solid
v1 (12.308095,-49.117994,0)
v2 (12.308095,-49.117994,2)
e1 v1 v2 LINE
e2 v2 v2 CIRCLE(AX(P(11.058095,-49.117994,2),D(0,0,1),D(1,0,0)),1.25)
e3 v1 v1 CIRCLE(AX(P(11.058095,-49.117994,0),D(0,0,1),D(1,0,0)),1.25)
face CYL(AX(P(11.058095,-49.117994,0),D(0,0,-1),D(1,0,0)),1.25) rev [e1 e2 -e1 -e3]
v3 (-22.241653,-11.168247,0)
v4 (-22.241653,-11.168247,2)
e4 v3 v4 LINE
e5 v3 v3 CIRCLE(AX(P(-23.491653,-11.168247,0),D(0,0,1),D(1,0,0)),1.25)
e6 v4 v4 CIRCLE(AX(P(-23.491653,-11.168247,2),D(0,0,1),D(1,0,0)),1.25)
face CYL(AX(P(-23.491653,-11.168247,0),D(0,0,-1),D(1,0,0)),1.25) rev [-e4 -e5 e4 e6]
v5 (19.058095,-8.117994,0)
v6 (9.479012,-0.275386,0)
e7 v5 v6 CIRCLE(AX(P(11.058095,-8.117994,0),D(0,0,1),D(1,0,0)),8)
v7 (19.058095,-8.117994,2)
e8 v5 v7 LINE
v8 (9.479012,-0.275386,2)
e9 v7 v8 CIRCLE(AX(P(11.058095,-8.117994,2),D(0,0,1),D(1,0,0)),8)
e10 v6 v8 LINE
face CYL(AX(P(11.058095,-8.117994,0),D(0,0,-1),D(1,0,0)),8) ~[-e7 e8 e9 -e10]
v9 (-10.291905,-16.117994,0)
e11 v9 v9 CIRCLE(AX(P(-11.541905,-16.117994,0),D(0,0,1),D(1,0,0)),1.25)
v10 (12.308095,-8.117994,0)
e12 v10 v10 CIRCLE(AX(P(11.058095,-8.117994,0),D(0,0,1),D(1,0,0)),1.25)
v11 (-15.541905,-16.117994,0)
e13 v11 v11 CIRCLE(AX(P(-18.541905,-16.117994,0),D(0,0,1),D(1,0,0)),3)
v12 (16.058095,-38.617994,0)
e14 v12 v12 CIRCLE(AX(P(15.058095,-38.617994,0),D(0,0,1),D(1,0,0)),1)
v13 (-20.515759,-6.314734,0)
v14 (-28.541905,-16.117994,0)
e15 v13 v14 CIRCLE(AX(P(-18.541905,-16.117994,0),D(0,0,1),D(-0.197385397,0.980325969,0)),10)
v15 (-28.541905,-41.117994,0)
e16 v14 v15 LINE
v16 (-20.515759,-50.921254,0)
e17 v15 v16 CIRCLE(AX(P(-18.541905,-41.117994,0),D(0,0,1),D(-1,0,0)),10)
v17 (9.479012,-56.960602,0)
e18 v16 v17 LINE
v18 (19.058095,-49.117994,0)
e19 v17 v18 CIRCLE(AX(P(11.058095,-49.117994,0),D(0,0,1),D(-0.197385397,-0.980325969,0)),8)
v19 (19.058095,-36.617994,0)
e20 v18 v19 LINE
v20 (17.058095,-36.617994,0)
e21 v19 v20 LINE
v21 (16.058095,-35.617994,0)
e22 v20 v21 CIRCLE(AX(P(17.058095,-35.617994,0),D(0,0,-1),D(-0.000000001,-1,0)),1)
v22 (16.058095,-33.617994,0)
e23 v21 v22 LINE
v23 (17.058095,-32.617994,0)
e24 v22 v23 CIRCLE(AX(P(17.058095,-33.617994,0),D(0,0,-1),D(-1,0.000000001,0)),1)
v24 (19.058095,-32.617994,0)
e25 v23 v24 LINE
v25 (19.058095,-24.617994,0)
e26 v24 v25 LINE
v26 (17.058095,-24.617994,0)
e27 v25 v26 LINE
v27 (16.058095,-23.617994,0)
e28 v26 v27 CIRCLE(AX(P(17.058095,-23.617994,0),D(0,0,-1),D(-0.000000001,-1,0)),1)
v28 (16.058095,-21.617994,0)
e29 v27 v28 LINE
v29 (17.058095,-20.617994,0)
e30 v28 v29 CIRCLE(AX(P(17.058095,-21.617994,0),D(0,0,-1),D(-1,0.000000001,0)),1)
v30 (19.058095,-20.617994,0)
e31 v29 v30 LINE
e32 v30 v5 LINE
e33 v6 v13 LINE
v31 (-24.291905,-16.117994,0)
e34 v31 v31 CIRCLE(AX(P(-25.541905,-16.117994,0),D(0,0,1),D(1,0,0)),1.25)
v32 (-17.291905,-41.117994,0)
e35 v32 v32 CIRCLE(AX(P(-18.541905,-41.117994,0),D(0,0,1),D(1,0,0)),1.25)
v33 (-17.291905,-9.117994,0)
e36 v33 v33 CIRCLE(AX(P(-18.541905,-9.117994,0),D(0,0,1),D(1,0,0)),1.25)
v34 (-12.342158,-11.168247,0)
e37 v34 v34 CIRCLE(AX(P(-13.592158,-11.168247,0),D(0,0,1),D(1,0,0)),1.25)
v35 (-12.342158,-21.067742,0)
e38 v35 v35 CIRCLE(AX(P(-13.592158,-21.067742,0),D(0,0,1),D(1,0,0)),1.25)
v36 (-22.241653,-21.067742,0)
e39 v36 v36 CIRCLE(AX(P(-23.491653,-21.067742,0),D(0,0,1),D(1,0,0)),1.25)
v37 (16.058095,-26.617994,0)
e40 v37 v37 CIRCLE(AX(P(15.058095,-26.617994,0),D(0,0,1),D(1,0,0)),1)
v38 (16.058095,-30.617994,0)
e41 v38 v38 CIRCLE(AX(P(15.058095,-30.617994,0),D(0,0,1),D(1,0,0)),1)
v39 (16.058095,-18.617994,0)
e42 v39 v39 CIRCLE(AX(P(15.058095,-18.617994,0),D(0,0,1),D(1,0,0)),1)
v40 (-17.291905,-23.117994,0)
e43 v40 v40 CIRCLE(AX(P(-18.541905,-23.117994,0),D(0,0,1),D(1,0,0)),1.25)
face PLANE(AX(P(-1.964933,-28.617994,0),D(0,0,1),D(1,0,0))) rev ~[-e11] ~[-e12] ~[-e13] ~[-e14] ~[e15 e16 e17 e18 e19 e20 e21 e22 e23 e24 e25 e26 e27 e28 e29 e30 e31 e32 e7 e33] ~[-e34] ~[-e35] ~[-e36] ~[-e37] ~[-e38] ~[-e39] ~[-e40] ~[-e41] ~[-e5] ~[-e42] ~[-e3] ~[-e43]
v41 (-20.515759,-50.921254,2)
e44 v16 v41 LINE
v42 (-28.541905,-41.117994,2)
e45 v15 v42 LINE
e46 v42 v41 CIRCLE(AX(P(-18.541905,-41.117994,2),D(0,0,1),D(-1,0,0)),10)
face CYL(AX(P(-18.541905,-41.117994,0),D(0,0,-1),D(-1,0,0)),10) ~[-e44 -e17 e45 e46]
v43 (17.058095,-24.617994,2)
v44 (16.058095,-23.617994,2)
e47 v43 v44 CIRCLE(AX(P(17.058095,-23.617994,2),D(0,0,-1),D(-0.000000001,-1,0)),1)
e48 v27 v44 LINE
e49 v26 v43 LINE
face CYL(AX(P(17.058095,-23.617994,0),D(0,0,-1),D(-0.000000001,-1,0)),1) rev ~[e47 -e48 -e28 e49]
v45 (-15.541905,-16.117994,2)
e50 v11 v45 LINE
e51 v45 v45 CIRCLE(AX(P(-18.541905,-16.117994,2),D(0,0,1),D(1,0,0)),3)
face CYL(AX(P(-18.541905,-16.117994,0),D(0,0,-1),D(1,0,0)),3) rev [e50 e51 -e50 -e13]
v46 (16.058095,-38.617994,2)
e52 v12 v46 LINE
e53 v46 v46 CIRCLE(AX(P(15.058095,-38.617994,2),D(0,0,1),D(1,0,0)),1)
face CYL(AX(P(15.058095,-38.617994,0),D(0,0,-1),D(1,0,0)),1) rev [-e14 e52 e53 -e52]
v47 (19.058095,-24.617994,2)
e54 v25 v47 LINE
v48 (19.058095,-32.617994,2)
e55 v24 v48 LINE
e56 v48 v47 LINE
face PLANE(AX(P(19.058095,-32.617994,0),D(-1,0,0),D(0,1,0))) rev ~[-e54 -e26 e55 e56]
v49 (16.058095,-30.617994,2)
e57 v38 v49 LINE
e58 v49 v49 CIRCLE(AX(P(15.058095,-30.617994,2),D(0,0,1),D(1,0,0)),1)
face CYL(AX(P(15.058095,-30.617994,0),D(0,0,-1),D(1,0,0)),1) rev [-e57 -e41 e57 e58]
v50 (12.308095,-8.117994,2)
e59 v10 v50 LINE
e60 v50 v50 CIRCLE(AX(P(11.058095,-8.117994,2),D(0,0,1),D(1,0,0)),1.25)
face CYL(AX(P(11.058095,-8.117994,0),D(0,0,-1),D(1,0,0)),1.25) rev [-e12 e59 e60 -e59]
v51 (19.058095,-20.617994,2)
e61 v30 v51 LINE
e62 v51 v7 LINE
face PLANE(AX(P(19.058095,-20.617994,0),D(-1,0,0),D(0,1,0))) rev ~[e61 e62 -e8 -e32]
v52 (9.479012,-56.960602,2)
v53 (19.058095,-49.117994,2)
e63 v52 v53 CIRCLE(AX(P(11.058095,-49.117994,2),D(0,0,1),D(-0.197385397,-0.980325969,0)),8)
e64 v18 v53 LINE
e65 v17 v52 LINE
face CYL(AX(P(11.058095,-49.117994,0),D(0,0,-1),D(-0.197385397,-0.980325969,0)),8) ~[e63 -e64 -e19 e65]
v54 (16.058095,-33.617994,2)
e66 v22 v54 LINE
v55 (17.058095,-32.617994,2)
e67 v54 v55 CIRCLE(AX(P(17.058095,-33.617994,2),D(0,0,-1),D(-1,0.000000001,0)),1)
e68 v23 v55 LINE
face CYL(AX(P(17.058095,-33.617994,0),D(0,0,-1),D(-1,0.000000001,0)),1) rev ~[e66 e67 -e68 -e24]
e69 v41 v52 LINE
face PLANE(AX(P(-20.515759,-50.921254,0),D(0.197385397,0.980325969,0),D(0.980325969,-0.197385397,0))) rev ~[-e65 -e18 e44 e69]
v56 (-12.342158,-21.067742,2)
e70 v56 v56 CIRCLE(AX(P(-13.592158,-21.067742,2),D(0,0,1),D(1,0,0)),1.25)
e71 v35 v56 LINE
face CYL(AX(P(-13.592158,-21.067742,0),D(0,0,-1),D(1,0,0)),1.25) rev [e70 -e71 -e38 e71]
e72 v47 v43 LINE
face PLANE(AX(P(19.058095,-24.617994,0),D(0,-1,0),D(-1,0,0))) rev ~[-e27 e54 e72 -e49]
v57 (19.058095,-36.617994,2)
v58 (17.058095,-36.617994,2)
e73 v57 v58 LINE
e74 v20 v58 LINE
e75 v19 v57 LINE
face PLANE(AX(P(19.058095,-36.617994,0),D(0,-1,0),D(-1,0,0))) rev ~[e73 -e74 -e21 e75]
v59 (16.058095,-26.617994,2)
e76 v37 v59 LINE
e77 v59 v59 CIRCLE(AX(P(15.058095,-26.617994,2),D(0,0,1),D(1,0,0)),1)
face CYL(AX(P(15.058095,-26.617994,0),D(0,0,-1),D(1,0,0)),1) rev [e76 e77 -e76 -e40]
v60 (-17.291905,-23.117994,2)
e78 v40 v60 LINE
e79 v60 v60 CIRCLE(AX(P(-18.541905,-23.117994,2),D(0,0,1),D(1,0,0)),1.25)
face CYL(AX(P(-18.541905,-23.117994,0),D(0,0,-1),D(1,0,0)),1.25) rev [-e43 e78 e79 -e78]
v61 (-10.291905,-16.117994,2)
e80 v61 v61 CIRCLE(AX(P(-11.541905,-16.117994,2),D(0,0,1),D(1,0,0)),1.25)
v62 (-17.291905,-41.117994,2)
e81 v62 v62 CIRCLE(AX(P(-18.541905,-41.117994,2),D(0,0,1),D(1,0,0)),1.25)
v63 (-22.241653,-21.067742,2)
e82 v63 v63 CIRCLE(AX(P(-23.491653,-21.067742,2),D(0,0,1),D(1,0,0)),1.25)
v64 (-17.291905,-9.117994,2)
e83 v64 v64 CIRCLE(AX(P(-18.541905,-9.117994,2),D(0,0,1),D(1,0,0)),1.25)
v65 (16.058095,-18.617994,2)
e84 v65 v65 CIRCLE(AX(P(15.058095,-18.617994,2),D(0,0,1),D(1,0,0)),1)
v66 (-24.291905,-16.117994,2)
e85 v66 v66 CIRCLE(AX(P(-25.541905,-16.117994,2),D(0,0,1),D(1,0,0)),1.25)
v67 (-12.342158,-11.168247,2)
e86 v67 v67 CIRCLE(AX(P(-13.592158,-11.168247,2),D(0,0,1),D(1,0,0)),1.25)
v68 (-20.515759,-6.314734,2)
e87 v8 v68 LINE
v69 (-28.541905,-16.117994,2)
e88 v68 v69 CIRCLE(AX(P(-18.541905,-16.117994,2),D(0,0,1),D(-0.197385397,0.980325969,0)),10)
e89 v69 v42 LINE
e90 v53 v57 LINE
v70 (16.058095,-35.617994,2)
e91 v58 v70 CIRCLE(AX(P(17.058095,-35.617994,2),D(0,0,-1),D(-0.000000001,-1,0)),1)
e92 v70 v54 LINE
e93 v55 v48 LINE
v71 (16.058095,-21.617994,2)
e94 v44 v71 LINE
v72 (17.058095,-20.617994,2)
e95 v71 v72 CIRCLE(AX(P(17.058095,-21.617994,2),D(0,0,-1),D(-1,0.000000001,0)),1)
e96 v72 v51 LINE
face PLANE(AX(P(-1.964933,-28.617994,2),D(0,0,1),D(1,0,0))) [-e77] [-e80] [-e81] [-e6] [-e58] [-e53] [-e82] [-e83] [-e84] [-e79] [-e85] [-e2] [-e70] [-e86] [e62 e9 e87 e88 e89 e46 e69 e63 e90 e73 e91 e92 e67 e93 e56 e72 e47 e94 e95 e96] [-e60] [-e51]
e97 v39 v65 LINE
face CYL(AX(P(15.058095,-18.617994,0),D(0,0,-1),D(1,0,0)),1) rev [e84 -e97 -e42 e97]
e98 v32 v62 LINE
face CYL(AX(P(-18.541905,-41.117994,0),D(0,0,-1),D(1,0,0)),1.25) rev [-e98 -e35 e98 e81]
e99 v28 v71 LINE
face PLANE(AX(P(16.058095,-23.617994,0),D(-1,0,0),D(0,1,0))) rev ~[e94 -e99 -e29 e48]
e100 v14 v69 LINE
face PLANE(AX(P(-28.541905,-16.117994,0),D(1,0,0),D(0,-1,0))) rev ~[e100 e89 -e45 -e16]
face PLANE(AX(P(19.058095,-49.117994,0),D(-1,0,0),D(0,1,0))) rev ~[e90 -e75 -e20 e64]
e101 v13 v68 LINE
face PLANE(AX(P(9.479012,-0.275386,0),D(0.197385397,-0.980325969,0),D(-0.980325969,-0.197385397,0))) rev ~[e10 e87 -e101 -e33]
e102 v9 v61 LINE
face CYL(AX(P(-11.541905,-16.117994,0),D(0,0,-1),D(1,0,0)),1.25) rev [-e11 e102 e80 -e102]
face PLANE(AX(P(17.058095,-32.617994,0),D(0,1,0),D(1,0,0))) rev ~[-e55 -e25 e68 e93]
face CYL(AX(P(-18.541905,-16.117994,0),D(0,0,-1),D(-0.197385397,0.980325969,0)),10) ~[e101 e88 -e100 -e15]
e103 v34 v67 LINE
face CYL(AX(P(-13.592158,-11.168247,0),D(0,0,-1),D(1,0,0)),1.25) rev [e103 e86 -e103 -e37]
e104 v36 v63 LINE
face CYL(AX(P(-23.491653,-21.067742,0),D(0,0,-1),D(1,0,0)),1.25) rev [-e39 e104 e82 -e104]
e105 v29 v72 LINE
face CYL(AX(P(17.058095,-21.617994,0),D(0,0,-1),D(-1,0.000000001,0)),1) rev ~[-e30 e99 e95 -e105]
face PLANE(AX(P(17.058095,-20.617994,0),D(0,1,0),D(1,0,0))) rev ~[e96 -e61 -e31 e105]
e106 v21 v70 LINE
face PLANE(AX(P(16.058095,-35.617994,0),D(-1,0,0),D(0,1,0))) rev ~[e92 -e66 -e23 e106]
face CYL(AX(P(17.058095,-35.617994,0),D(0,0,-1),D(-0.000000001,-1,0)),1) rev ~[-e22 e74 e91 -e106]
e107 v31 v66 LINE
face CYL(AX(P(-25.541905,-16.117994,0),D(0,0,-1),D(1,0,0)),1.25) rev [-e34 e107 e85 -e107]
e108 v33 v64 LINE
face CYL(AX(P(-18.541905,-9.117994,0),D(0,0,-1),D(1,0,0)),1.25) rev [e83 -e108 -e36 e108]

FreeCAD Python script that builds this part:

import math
import FreeCAD as App
import Part
import Sketcher

V = App.Vector

doc = App.newDocument("Part")
params = doc.addObject("Spreadsheet::Sheet", "Params")
for row, (alias, value) in enumerate([
    ("sketch1_diameter", "2 mm"),
    ("sketch1_diameter2", "6 mm"),
    ("sketch1_radius", "10 mm"),
    ("sketch1_radius2", "8 mm"),
    ("sketch1_diameter3", "2.5 mm"),
    ("pad1_length", "2 mm"),
], start=1):
    params.set(f"A{row}", alias)
    params.set(f"B{row}", "=" + value)
    params.setAlias(f"B{row}", alias)

body = doc.addObject("PartDesign::Body", "Body")

# Sketch on XY plane
sketch1 = body.newObject("Sketcher::SketchObject", "Sketch")
sketch1.AttachmentSupport = (doc.getObject("XY_Plane"), [""])
sketch1.MapMode = "FlatFace"
sketch1.addGeometry(Part.LineSegment(V(-28.541905, -16.117994, 0), V(-28.541905, -41.117994, 0)), False)
sketch1.addGeometry(Part.ArcOfCircle(Part.Circle(V(-18.541905, -41.117994, 0), V(0, 0, 1), 10), math.radians(180), math.radians(258.615894)), False)
sketch1.addGeometry(Part.LineSegment(V(-20.515759, -50.921254, 0), V(9.479012, -56.960602, 0)), False)
sketch1.addGeometry(Part.ArcOfCircle(Part.Circle(V(11.058095, -49.117994, 0), V(0, 0, 1), 8), math.radians(-101.384106), math.radians(0)), False)
sketch1.addGeometry(Part.LineSegment(V(19.058095, -49.117994, 0), V(19.058095, -36.617994, 0)), False)
sketch1.addGeometry(Part.LineSegment(V(19.058095, -36.617994, 0), V(17.058095, -36.617994, 0)), False)
sketch1.addGeometry(Part.ArcOfCircle(Part.Circle(V(17.058095, -35.617994, 0), V(0, 0, 1), 1), math.radians(-180), math.radians(-90)), False)
sketch1.addGeometry(Part.LineSegment(V(16.058095, -35.617994, 0), V(16.058095, -33.617994, 0)), False)
sketch1.addGeometry(Part.ArcOfCircle(Part.Circle(V(17.058095, -33.617994, 0), V(0, 0, 1), 1), math.radians(90), math.radians(180)), False)
sketch1.addGeometry(Part.LineSegment(V(17.058095, -32.617994, 0), V(19.058095, -32.617994, 0)), False)
sketch1.addGeometry(Part.LineSegment(V(19.058095, -32.617994, 0), V(19.058095, -24.617994, 0)), False)
sketch1.addGeometry(Part.LineSegment(V(19.058095, -24.617994, 0), V(17.058095, -24.617994, 0)), False)
sketch1.addGeometry(Part.ArcOfCircle(Part.Circle(V(17.058095, -23.617994, 0), V(0, 0, 1), 1), math.radians(-180), math.radians(-90)), False)
sketch1.addGeometry(Part.LineSegment(V(16.058095, -23.617994, 0), V(16.058095, -21.617994, 0)), False)
sketch1.addGeometry(Part.ArcOfCircle(Part.Circle(V(17.058095, -21.617994, 0), V(0, 0, 1), 1), math.radians(90), math.radians(180)), False)
sketch1.addGeometry(Part.LineSegment(V(17.058095, -20.617994, 0), V(19.058095, -20.617994, 0)), False)
sketch1.addGeometry(Part.LineSegment(V(19.058095, -20.617994, 0), V(19.058095, -8.117994, 0)), False)
sketch1.addGeometry(Part.ArcOfCircle(Part.Circle(V(11.058095, -8.117994, 0), V(0, 0, 1), 8), math.radians(0), math.radians(101.384106)), False)
sketch1.addGeometry(Part.LineSegment(V(9.479012, -0.275386, 0), V(-20.515759, -6.314734, 0)), False)
sketch1.addGeometry(Part.ArcOfCircle(Part.Circle(V(-18.541905, -16.117994, 0), V(0, 0, 1), 10), math.radians(101.384106), math.radians(180)), False)
sketch1.addGeometry(Part.Circle(V(-18.541905, -41.117994, 0), V(0, 0, 1), 1.25), False)
sketch1.addGeometry(Part.Circle(V(11.058095, -49.117994, 0), V(0, 0, 1), 1.25), False)
sketch1.addGeometry(Part.Circle(V(15.058095, -38.617994, 0), V(0, 0, 1), 1), False)
sketch1.addGeometry(Part.Circle(V(15.058095, -30.617994, 0), V(0, 0, 1), 1), False)
sketch1.addGeometry(Part.Circle(V(-23.491653, -21.067742, 0), V(0, 0, 1), 1.25), False)
sketch1.addGeometry(Part.Circle(V(-18.541905, -23.117994, 0), V(0, 0, 1), 1.25), False)
sketch1.addGeometry(Part.Circle(V(-13.592158, -21.067742, 0), V(0, 0, 1), 1.25), False)
sketch1.addGeometry(Part.Circle(V(-25.541905, -16.117994, 0), V(0, 0, 1), 1.25), False)
sketch1.addGeometry(Part.Circle(V(-18.541905, -16.117994, 0), V(0, 0, 1), 3), False)
sketch1.addGeometry(Part.Circle(V(-23.491653, -11.168247, 0), V(0, 0, 1), 1.25), False)
sketch1.addGeometry(Part.Circle(V(-18.541905, -9.117994, 0), V(0, 0, 1), 1.25), False)
sketch1.addGeometry(Part.Circle(V(-11.541905, -16.117994, 0), V(0, 0, 1), 1.25), False)
sketch1.addGeometry(Part.Circle(V(-13.592158, -11.168247, 0), V(0, 0, 1), 1.25), False)
sketch1.addGeometry(Part.Circle(V(15.058095, -26.617994, 0), V(0, 0, 1), 1), False)
sketch1.addGeometry(Part.Circle(V(15.058095, -18.617994, 0), V(0, 0, 1), 1), False)
sketch1.addGeometry(Part.Circle(V(11.058095, -8.117994, 0), V(0, 0, 1), 1.25), False)
sketch1.addConstraint(Sketcher.Constraint("Tangent", 0, 2, 1, 1))
sketch1.addConstraint(Sketcher.Constraint("Tangent", 1, 2, 2, 1))
sketch1.addConstraint(Sketcher.Constraint("Tangent", 2, 2, 3, 1))
sketch1.addConstraint(Sketcher.Constraint("Tangent", 3, 2, 4, 1))
sketch1.addConstraint(Sketcher.Constraint("Coincident", 4, 2, 5, 1))
sketch1.addConstraint(Sketcher.Constraint("Tangent", 5, 2, 6, 2))
sketch1.addConstraint(Sketcher.Constraint("Tangent", 6, 1, 7, 1))
sketch1.addConstraint(Sketcher.Constraint("Tangent", 7, 2, 8, 2))
sketch1.addConstraint(Sketcher.Constraint("Tangent", 8, 1, 9, 1))
sketch1.addConstraint(Sketcher.Constraint("Coincident", 9, 2, 10, 1))
sketch1.addConstraint(Sketcher.Constraint("Coincident", 10, 2, 11, 1))
sketch1.addConstraint(Sketcher.Constraint("Tangent", 11, 2, 12, 2))
sketch1.addConstraint(Sketcher.Constraint("Tangent", 12, 1, 13, 1))
sketch1.addConstraint(Sketcher.Constraint("Tangent", 13, 2, 14, 2))
sketch1.addConstraint(Sketcher.Constraint("Tangent", 14, 1, 15, 1))
sketch1.addConstraint(Sketcher.Constraint("Coincident", 15, 2, 16, 1))
sketch1.addConstraint(Sketcher.Constraint("Tangent", 16, 2, 17, 1))
sketch1.addConstraint(Sketcher.Constraint("Tangent", 17, 2, 18, 1))
sketch1.addConstraint(Sketcher.Constraint("Tangent", 18, 2, 19, 1))
sketch1.addConstraint(Sketcher.Constraint("Tangent", 19, 2, 0, 1))
sketch1.addConstraint(Sketcher.Constraint("Vertical", 0))
sketch1.addConstraint(Sketcher.Constraint("Vertical", 4))
sketch1.addConstraint(Sketcher.Constraint("Horizontal", 5))
sketch1.addConstraint(Sketcher.Constraint("Vertical", 7))
sketch1.addConstraint(Sketcher.Constraint("Horizontal", 9))
sketch1.addConstraint(Sketcher.Constraint("Vertical", 10))
sketch1.addConstraint(Sketcher.Constraint("Horizontal", 11))
sketch1.addConstraint(Sketcher.Constraint("Vertical", 13))
sketch1.addConstraint(Sketcher.Constraint("Horizontal", 15))
sketch1.addConstraint(Sketcher.Constraint("Vertical", 16))
sketch1.addConstraint(Sketcher.Constraint("Coincident", 20, 3, 1, 3))
sketch1.addConstraint(Sketcher.Constraint("Coincident", 21, 3, 3, 3))
sketch1.addConstraint(Sketcher.Constraint("Coincident", 28, 3, 19, 3))
sketch1.addConstraint(Sketcher.Constraint("Coincident", 35, 3, 17, 3))
sketch1.addConstraint(Sketcher.Constraint("Equal", 6, 8))
sketch1.addConstraint(Sketcher.Constraint("Equal", 8, 12))
sketch1.addConstraint(Sketcher.Constraint("Equal", 12, 14))
sketch1.addConstraint(Sketcher.Constraint("Equal", 3, 17))
sketch1.addConstraint(Sketcher.Constraint("Equal", 1, 19))
sketch1.addConstraint(Sketcher.Constraint("Equal", 20, 21))
sketch1.addConstraint(Sketcher.Constraint("Equal", 14, 22))
sketch1.addConstraint(Sketcher.Constraint("Equal", 22, 23))
sketch1.addConstraint(Sketcher.Constraint("Equal", 21, 24))
sketch1.addConstraint(Sketcher.Constraint("Equal", 24, 25))
sketch1.addConstraint(Sketcher.Constraint("Equal", 25, 26))
sketch1.addConstraint(Sketcher.Constraint("Equal", 26, 27))
sketch1.addConstraint(Sketcher.Constraint("Equal", 27, 29))
sketch1.addConstraint(Sketcher.Constraint("Equal", 29, 30))
sketch1.addConstraint(Sketcher.Constraint("Equal", 30, 31))
sketch1.addConstraint(Sketcher.Constraint("Equal", 31, 32))
sketch1.addConstraint(Sketcher.Constraint("Equal", 23, 33))
sketch1.addConstraint(Sketcher.Constraint("Equal", 33, 34))
sketch1.addConstraint(Sketcher.Constraint("Equal", 32, 35))
sketch1.addConstraint(Sketcher.Constraint("Horizontal", 24, 3, 26, 3))
sketch1.addConstraint(Sketcher.Constraint("Horizontal", 19, 3, 27, 3))
sketch1.addConstraint(Sketcher.Constraint("Horizontal", 28, 3, 31, 3))
sketch1.addConstraint(Sketcher.Constraint("Horizontal", 29, 3, 32, 3))
sketch1.addConstraint(Sketcher.Constraint("Vertical", 8, 3, 12, 3))
sketch1.addConstraint(Sketcher.Constraint("Vertical", 3, 3, 17, 3))
sketch1.addConstraint(Sketcher.Constraint("Vertical", 22, 3, 23, 3))
sketch1.addConstraint(Sketcher.Constraint("Vertical", 20, 3, 25, 3))
sketch1.addConstraint(Sketcher.Constraint("Vertical", 24, 3, 29, 3))
sketch1.addConstraint(Sketcher.Constraint("Vertical", 28, 3, 30, 3))
sketch1.addConstraint(Sketcher.Constraint("Vertical", 26, 3, 32, 3))
sketch1.addConstraint(Sketcher.Constraint("Vertical", 23, 3, 33, 3))
sketch1.addConstraint(Sketcher.Constraint("Vertical", 33, 3, 34, 3))
sketch1.addConstraint(Sketcher.Constraint("Vertical", 4, 2, 9, 2))
sketch1.addConstraint(Sketcher.Constraint("Vertical", 2, 2, 17, 2))
sketch1.addConstraint(Sketcher.Constraint("Equal", 15, 7))
sketch1.addConstraint(Sketcher.Constraint("Equal", 7, 13))
sketch1.addConstraint(Sketcher.Constraint("Equal", 4, 16))
sketch1.addConstraint(Sketcher.Constraint("Diameter", 22, 2.0))
sketch1.addConstraint(Sketcher.Constraint("Diameter", 28, 6.0))
sketch1.addConstraint(Sketcher.Constraint("Radius", 1, 10.0))
sketch1.addConstraint(Sketcher.Constraint("Radius", 3, 8.0))
sketch1.addConstraint(Sketcher.Constraint("Diameter", 20, 2.5))
sketch1.addConstraint(Sketcher.Constraint("DistanceX", 5, 2, 5, 1, 2.0))
sketch1.addConstraint(Sketcher.Constraint("DistanceY", 0, 2, 0, 1, 25.0))
sketch1.addConstraint(Sketcher.Constraint("DistanceY", 10, 1, 10, 2, 8.0))
sketch1.addConstraint(Sketcher.Constraint("DistanceY", 4, 1, 4, 2, 12.5))
sketch1.addConstraint(Sketcher.Constraint("DistanceX", 22, 3, 6, 3, 2.0))
sketch1.addConstraint(Sketcher.Constraint("DistanceY", 22, 3, 6, 3, 3.0))
sketch1.addConstraint(Sketcher.Constraint("DistanceY", 8, 3, 23, 3, 3.0))
sketch1.addConstraint(Sketcher.Constraint("DistanceY", 25, 3, 19, 3, 7.0))
sketch1.addConstraint(Sketcher.Constraint("DistanceX", 27, 3, 19, 3, 7.0))
sketch1.addConstraint(Sketcher.Constraint("DistanceY", 28, 3, 30, 3, 7.0))
sketch1.addConstraint(Sketcher.Constraint("DistanceX", 19, 3, 31, 3, 7.0))
sketch1.addConstraint(Sketcher.Constraint("DistanceY", 33, 3, 12, 3, 3.0))
sketch1.addConstraint(Sketcher.Constraint("DistanceY", 14, 3, 34, 3, 3.0))
sketch1.addConstraint(Sketcher.Constraint("DistanceX", 1, 3, 3, 3, 29.6))
sketch1.addConstraint(Sketcher.Constraint("DistanceY", 2, 2, -1, 1, 56.960602))
sketch1.addConstraint(Sketcher.Constraint("DistanceX", 18, 2, 32, 3, 6.923601))
sketch1.addConstraint(Sketcher.Constraint("DistanceY", 24, 3, -1, 1, 21.067742))
sketch1.addConstraint(Sketcher.Constraint("DistanceX", 1, 2, -1, 1, 20.515759))
sketch1.addConstraint(Sketcher.Constraint("DistanceX", 24, 3, -1, 1, 23.491653))
sketch1.addConstraint(Sketcher.Constraint("DistanceY", 29, 3, -1, 1, 11.168247))
sketch1.setExpression("Constraints[71]", "Params.sketch1_diameter")
sketch1.setExpression("Constraints[72]", "Params.sketch1_diameter2")
sketch1.setExpression("Constraints[73]", "Params.sketch1_radius")
sketch1.setExpression("Constraints[74]", "Params.sketch1_radius2")
sketch1.setExpression("Constraints[75]", "Params.sketch1_diameter3")
pad1 = body.newObject("PartDesign::Pad", "Pad")
pad1.Profile = sketch1
pad1.setExpression("Length", "Params.pad1_length")

doc.recompute()
